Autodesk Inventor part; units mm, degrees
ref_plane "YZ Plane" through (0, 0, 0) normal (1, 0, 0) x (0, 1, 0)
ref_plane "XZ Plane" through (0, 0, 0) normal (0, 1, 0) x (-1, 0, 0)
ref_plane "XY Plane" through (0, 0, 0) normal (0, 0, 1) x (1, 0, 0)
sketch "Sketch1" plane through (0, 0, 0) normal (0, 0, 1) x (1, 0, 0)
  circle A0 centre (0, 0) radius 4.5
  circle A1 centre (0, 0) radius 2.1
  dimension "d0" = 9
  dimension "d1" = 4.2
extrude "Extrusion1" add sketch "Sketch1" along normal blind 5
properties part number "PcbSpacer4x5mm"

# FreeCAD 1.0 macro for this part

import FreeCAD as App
import Part
import Sketcher
from FreeCAD import Vector

doc = App.newDocument("Part")
params = doc.addObject("Spreadsheet::Sheet", "Params")
for row, (alias, value) in enumerate([
    ("sketch1_diameter", "9 mm"),
    ("sketch1_diameter2", "4.2 mm"),
    ("pad1_length", "5 mm"),
], start=1):
    params.set(f"A{row}", alias)
    params.set(f"B{row}", "=" + value)
    params.setAlias(f"B{row}", alias)

body = doc.addObject("PartDesign::Body", "Body")

# Sketch on XY plane
sketch1 = body.newObject("Sketcher::SketchObject", "Sketch")
sketch1.AttachmentSupport = (doc.getObject("XY_Plane"), [""])
sketch1.MapMode = "FlatFace"
sketch1.addGeometry([
    Part.Circle(Vector(0, 0, 0), Vector(0, 0, 1), 4.5),
    Part.Circle(Vector(0, 0, 0), Vector(0, 0, 1), 2.1),
], False)
sketch1.addConstraint([
    Sketcher.Constraint("Coincident", 0, 3, -1, 1),
    Sketcher.Constraint("Coincident", 1, 3, -1, 1),
    Sketcher.Constraint("Diameter", 0, 9.0),
    Sketcher.Constraint("Diameter", 1, 4.2),
])
sketch1.setExpression("Constraints[2]", "Params.sketch1_diameter")
sketch1.setExpression("Constraints[3]", "Params.sketch1_diameter2")
pad1 = body.newObject("PartDesign::Pad", "Pad")
pad1.Profile = sketch1
pad1.setExpression("Length", "Params.pad1_length")

doc.recompute()
